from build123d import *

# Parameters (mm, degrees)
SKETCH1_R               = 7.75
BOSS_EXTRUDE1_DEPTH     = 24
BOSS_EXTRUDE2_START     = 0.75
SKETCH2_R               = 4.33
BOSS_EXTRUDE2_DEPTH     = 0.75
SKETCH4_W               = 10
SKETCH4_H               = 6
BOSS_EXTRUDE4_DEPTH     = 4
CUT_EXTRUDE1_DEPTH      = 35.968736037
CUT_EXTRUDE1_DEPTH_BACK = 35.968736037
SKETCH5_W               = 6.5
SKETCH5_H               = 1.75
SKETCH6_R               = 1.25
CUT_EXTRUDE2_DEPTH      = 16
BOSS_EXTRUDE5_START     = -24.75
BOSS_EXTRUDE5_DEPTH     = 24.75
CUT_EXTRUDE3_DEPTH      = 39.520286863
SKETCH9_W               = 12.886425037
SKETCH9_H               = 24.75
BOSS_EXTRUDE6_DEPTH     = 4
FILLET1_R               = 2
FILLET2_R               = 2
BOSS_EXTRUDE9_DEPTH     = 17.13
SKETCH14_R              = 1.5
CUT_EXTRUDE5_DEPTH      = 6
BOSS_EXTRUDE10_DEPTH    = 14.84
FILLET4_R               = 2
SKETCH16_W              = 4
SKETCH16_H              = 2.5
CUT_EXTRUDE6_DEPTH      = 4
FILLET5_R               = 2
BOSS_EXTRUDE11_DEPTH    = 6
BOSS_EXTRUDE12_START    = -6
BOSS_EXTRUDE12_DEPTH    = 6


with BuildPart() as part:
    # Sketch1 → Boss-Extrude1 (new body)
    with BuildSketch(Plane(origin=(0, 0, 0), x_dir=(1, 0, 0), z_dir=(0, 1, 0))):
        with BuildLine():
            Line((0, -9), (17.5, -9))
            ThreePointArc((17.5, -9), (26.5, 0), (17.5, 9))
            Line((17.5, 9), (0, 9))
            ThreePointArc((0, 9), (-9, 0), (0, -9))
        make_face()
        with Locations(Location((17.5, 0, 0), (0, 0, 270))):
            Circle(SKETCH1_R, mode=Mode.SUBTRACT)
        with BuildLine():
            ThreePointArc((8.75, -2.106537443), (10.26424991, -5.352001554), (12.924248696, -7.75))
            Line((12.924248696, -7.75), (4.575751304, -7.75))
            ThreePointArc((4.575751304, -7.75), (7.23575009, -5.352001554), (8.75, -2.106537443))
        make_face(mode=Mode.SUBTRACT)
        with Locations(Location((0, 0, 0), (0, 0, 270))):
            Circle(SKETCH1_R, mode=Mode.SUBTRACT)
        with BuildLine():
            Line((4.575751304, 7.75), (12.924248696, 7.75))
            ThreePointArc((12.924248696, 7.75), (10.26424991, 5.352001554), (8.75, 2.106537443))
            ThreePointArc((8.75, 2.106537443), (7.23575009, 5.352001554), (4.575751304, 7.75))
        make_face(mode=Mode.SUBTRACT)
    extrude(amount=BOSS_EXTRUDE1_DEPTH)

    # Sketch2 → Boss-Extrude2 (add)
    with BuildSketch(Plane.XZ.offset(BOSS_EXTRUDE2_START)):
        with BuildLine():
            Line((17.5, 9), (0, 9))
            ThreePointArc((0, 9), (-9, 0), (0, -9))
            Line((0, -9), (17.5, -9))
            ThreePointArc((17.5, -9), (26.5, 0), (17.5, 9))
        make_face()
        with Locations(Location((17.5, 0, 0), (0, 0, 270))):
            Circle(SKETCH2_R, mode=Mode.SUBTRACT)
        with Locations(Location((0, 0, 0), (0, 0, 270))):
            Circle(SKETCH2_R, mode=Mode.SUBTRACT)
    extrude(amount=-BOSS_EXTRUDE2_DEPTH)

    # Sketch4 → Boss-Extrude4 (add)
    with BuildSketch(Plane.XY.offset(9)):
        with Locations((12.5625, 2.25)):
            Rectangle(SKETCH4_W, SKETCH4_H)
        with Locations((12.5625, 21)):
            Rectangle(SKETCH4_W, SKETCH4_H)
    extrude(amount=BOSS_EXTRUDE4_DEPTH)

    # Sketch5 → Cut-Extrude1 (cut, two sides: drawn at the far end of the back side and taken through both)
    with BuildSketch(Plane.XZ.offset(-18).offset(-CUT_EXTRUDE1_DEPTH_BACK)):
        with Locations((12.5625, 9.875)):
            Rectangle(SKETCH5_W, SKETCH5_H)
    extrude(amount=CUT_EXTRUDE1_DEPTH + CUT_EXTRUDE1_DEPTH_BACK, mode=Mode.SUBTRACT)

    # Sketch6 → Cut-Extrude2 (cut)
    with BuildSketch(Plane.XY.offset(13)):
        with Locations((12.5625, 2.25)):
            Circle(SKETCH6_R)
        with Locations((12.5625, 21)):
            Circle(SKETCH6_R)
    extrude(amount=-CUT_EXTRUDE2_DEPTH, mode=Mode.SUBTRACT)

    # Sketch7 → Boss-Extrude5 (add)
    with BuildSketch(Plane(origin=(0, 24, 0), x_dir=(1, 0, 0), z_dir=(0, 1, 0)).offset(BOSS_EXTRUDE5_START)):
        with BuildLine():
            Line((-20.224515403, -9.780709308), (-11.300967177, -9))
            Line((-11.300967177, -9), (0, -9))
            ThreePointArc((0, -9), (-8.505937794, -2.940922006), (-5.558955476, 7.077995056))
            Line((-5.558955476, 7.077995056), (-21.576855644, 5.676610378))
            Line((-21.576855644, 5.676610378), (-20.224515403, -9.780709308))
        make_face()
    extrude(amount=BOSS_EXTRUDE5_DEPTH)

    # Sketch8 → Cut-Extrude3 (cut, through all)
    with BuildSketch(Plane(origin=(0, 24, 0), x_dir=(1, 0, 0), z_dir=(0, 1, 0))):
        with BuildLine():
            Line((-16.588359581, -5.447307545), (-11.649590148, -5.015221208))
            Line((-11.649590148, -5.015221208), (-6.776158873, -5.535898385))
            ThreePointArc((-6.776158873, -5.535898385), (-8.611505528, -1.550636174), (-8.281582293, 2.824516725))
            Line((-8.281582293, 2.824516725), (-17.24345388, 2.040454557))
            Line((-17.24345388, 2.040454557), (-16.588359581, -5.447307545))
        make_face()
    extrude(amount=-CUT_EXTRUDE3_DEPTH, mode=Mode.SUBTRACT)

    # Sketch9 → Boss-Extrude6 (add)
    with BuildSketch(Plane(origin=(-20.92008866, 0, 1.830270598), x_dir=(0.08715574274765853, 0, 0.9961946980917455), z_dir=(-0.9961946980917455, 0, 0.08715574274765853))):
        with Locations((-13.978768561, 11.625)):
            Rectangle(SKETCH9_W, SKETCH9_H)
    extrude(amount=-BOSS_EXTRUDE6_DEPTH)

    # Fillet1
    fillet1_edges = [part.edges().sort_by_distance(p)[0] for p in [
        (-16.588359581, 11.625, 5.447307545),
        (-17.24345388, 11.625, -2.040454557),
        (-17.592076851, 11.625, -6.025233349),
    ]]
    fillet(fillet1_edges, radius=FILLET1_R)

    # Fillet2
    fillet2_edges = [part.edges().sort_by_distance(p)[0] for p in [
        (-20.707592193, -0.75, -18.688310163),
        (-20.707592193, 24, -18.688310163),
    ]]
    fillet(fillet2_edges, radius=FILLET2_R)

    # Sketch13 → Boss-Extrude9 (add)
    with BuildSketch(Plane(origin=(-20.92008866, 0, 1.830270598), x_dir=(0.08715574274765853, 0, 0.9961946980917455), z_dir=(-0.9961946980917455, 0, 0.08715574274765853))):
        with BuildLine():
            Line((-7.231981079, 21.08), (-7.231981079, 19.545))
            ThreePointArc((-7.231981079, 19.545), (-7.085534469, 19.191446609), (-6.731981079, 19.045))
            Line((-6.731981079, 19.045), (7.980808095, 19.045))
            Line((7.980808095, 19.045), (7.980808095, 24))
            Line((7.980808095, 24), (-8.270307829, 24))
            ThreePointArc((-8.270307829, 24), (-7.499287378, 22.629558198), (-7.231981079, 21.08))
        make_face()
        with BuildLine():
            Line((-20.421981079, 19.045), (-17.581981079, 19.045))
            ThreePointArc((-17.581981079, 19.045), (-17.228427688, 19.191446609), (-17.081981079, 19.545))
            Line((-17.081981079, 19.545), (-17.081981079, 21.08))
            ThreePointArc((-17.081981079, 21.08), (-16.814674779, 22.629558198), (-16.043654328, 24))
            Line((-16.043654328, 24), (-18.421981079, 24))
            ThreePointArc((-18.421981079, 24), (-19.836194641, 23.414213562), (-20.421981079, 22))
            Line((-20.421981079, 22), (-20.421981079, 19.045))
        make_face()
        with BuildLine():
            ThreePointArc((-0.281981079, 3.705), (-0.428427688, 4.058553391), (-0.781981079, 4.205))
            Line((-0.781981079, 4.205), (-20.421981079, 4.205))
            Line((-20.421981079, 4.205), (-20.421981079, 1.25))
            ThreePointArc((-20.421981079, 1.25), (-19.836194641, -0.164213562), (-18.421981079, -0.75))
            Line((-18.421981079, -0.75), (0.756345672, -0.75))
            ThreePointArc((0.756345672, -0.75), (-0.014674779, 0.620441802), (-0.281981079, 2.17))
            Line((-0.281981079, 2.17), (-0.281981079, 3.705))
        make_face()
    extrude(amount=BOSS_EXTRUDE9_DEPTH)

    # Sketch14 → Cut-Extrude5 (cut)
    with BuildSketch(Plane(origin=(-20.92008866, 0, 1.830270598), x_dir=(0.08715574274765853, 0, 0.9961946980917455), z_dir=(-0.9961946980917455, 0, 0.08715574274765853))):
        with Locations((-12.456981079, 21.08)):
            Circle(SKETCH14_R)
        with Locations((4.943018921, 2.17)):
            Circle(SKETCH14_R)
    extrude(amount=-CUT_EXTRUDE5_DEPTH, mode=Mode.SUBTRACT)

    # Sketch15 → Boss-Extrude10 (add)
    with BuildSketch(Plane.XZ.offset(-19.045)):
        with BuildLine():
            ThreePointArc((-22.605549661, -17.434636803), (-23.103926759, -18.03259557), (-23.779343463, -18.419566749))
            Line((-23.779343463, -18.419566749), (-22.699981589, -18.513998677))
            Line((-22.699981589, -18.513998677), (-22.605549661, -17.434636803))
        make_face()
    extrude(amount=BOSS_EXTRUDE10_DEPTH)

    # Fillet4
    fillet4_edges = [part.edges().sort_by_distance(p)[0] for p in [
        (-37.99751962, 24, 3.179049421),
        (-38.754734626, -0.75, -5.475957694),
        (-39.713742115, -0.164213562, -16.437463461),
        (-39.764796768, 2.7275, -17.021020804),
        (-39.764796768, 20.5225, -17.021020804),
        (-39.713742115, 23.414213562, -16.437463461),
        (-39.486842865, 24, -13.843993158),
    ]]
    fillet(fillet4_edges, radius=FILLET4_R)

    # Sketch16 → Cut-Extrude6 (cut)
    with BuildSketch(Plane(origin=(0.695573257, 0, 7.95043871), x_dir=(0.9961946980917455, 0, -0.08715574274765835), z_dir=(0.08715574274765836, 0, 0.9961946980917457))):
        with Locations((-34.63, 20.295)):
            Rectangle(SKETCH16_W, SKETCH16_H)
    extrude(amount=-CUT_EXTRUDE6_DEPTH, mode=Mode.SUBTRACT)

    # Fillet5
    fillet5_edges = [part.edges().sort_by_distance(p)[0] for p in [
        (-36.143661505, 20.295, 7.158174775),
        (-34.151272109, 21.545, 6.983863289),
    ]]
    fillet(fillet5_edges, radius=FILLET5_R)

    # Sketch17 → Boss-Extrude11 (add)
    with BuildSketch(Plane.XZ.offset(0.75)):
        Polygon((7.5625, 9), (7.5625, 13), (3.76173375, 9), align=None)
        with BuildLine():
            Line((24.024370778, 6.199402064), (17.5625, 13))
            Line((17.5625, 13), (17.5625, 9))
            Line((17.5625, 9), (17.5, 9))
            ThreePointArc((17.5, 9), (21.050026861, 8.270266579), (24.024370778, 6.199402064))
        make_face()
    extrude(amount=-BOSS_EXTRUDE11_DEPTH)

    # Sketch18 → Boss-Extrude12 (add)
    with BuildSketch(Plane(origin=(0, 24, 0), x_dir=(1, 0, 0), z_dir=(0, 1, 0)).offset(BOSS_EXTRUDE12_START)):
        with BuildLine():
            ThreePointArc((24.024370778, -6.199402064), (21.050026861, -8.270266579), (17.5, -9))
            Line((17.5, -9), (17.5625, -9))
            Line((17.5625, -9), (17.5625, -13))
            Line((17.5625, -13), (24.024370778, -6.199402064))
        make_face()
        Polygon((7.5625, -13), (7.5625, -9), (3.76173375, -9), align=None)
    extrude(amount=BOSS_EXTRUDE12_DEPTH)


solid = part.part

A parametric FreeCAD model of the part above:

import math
import FreeCAD as App
import Part
import Sketcher
Q = App.Units.Quantity


def edges_at(feature, points):
    """Names of the edges that pass closest to the given points."""
    edges = feature.Shape.Edges
    near = lambda p: min(range(len(edges)), key=lambda i: edges[i].distToShape(Part.Vertex(*p))[0])
    return sorted({f"Edge{near(p) + 1}" for p in points})


def add_polygon(sketch, points):
    """Adds a closed chain of lines whose ends are joined by coincident constraints."""
    first, n = sketch.GeometryCount, len(points)
    for a, b in zip(points, points[1:] + points[:1]):
        sketch.addGeometry(Part.LineSegment(App.Vector(*a, 0), App.Vector(*b, 0)), False)
    for i in range(n):
        sketch.addConstraint(Sketcher.Constraint("Coincident", first + i, 2, first + (i + 1) % n, 1))

doc = App.newDocument("Part")
body = doc.addObject("PartDesign::Body", "Body")

sketch1 = body.newObject("Sketcher::SketchObject", "Sketch")
sketch1.AttachmentSupport = (doc.getObject("XZ_Plane"), [""])
sketch1.MapMode = "FlatFace"
sketch1.addGeometry(Part.LineSegment(App.Vector(0, 9, 0), App.Vector(18, 9, 0)), False)
sketch1.addGeometry(Part.ArcOfCircle(Part.Circle(App.Vector(18, 0, 0), App.Vector(0, 0, 1), 9), math.radians(-90), math.radians(90)), False)
sketch1.addGeometry(Part.LineSegment(App.Vector(18, -9, 0), App.Vector(0, -9, 0)), False)
sketch1.addGeometry(Part.ArcOfCircle(Part.Circle(App.Vector(0, 0, 0), App.Vector(0, 0, 1), 9), math.radians(90), math.radians(270)), False)
sketch1.addGeometry(Part.ArcOfCircle(Part.Circle(App.Vector(0, 0, 0), App.Vector(0, 0, 1), 9), math.radians(14), math.radians(59)), False)
sketch1.addGeometry(Part.ArcOfCircle(Part.Circle(App.Vector(17, 0, 0), App.Vector(0, 0, 1), 9), math.radians(121), math.radians(166)), False)
sketch1.addGeometry(Part.LineSegment(App.Vector(13, 8, 0), App.Vector(5, 8, 0)), False)
sketch1.addGeometry(Part.Circle(App.Vector(0, 0, 0), App.Vector(0, 0, 1), 8), False)
sketch1.addGeometry(Part.ArcOfCircle(Part.Circle(App.Vector(0, 0, 0), App.Vector(0, 0, 1), 9), math.radians(-59), math.radians(-14)), False)
sketch1.addGeometry(Part.LineSegment(App.Vector(5, -8, 0), App.Vector(13, -8, 0)), False)
sketch1.addGeometry(Part.ArcOfCircle(Part.Circle(App.Vector(17, 0, 0), App.Vector(0, 0, 1), 9), math.radians(-166), math.radians(-121)), False)
sketch1.addGeometry(Part.Circle(App.Vector(18, 0, 0), App.Vector(0, 0, 1), 8), False)
sketch1.addConstraint(Sketcher.Constraint("Tangent", 0, 2, 1, 2))
sketch1.addConstraint(Sketcher.Constraint("Tangent", 1, 1, 2, 1))
sketch1.addConstraint(Sketcher.Constraint("Tangent", 2, 2, 3, 2))
sketch1.addConstraint(Sketcher.Constraint("Tangent", 3, 1, 0, 1))
sketch1.addConstraint(Sketcher.Constraint("Coincident", 4, 1, 5, 2))
sketch1.addConstraint(Sketcher.Constraint("Coincident", 5, 1, 6, 1))
sketch1.addConstraint(Sketcher.Constraint("Coincident", 6, 2, 4, 2))
sketch1.addConstraint(Sketcher.Constraint("Coincident", 8, 1, 9, 1))
sketch1.addConstraint(Sketcher.Constraint("Coincident", 9, 2, 10, 2))
sketch1.addConstraint(Sketcher.Constraint("Coincident", 10, 1, 8, 2))
sketch1.addConstraint(Sketcher.Constraint("Horizontal", 0))
sketch1.addConstraint(Sketcher.Constraint("Horizontal", 2))
sketch1.addConstraint(Sketcher.Constraint("Horizontal", 6))
sketch1.addConstraint(Sketcher.Constraint("Horizontal", 9))
sketch1.addConstraint(Sketcher.Constraint("Coincident", 3, 3, -1, 1))
sketch1.addConstraint(Sketcher.Constraint("Coincident", 4, 3, -1, 1))
sketch1.addConstraint(Sketcher.Constraint("Coincident", 7, 3, -1, 1))
sketch1.addConstraint(Sketcher.Constraint("Coincident", 8, 3, -1, 1))
sketch1.addConstraint(Sketcher.Constraint("Coincident", 5, 3, 1, 3))
sketch1.addConstraint(Sketcher.Constraint("Coincident", 10, 3, 1, 3))
sketch1.addConstraint(Sketcher.Constraint("Coincident", 11, 3, 1, 3))
sketch1.addConstraint(Sketcher.Constraint("Equal", 3, 4))
sketch1.addConstraint(Sketcher.Constraint("Equal", 4, 5))
sketch1.addConstraint(Sketcher.Constraint("Equal", 5, 8))
sketch1.addConstraint(Sketcher.Constraint("Equal", 8, 10))
sketch1.addConstraint(Sketcher.Constraint("Equal", 7, 11))
sketch1.addConstraint(Sketcher.Constraint("Vertical", 6, 2, 8, 1))
sketch1.addConstraint(Sketcher.Constraint("Radius", 1, 9.0))
sketch1.addConstraint(Sketcher.Constraint("Diameter", 7, 15.5))
sketch1.addConstraint(Sketcher.Constraint("DistanceX", 0, 1, 0, 2, 17.5))
sketch1.addConstraint(Sketcher.Constraint("DistanceY", -1, 1, 5, 1, 7.75))
pad1 = body.newObject("PartDesign::Pad", "Pad")
pad1.Profile = sketch1
pad1.Length = 24
pad1.Reversed = True

sketch2 = body.newObject("Sketcher::SketchObject", "Sketch001")
sketch2.AttachmentSupport = (doc.getObject("XZ_Plane"), [""])
sketch2.MapMode = "FlatFace"
sketch2.AttachmentOffset = App.Placement(App.Vector(0, 0, 0.75), App.Rotation())
sketch2.addGeometry(Part.LineSegment(App.Vector(17.5, 9, 0), App.Vector(0, 9, 0)), False)
sketch2.addGeometry(Part.ArcOfCircle(Part.Circle(App.Vector(0, 0, 0), App.Vector(0, 0, 1), 9), math.radians(90), math.radians(270)), False)
sketch2.addGeometry(Part.LineSegment(App.Vector(0, -9, 0), App.Vector(17.5, -9, 0)), False)
sketch2.addGeometry(Part.ArcOfCircle(Part.Circle(App.Vector(17.5, 0, 0), App.Vector(0, 0, 1), 9), math.radians(-90), math.radians(90)), False)
sketch2.addGeometry(Part.Circle(App.Vector(0, 0, 0), App.Vector(0, 0, 1), 4.3), False)
sketch2.addGeometry(Part.Circle(App.Vector(17.5, 0, 0), App.Vector(0, 0, 1), 4.3), False)
sketch2.addConstraint(Sketcher.Constraint("Tangent", 0, 2, 1, 1))
sketch2.addConstraint(Sketcher.Constraint("Tangent", 1, 2, 2, 1))
sketch2.addConstraint(Sketcher.Constraint("Tangent", 2, 2, 3, 1))
sketch2.addConstraint(Sketcher.Constraint("Tangent", 3, 2, 0, 1))
sketch2.addConstraint(Sketcher.Constraint("Horizontal", 0))
sketch2.addConstraint(Sketcher.Constraint("Horizontal", 2))
sketch2.addConstraint(Sketcher.Constraint("Coincident", 1, 3, -1, 1))
sketch2.addConstraint(Sketcher.Constraint("Coincident", 4, 3, -1, 1))
sketch2.addConstraint(Sketcher.Constraint("Coincident", 5, 3, 3, 3))
sketch2.addConstraint(Sketcher.Constraint("Equal", 4, 5))
sketch2.addConstraint(Sketcher.Constraint("Radius", 1, 9.0))
sketch2.addConstraint(Sketcher.Constraint("Diameter", 4, 8.66))
sketch2.addConstraint(Sketcher.Constraint("DistanceX", 0, 2, 0, 1, 17.5))
pad2 = body.newObject("PartDesign::Pad", "Pad001")
pad2.Profile = sketch2
pad2.Length = 0.75
pad2.Reversed = True

sketch3 = body.newObject("Sketcher::SketchObject", "Sketch002")
sketch3.AttachmentSupport = (doc.getObject("XY_Plane"), [""])
sketch3.MapMode = "FlatFace"
sketch3.AttachmentOffset = App.Placement(App.Vector(0, 0, 9), App.Rotation())
add_polygon(sketch3, [(8, 5), (8, -1), (18, -1), (18, 5)])
add_polygon(sketch3, [(8, 24), (8, 18), (18, 18), (18, 24)])
sketch3.addConstraint(Sketcher.Constraint("Vertical", 0))
sketch3.addConstraint(Sketcher.Constraint("Horizontal", 1))
sketch3.addConstraint(Sketcher.Constraint("Vertical", 2))
sketch3.addConstraint(Sketcher.Constraint("Horizontal", 3))
sketch3.addConstraint(Sketcher.Constraint("Vertical", 4))
sketch3.addConstraint(Sketcher.Constraint("Horizontal", 5))
sketch3.addConstraint(Sketcher.Constraint("Vertical", 6))
sketch3.addConstraint(Sketcher.Constraint("Horizontal", 7))
sketch3.addConstraint(Sketcher.Constraint("Vertical", 3, 2, 4, 2))
sketch3.addConstraint(Sketcher.Constraint("Vertical", 2, 2, 5, 2))
sketch3.addConstraint(Sketcher.Constraint("Equal", 2, 4))
sketch3.addConstraint(Sketcher.Constraint("DistanceX", 1, 1, 1, 2, 10.0))
sketch3.addConstraint(Sketcher.Constraint("DistanceY", 0, 2, 0, 1, 6.0))
sketch3.addConstraint(Sketcher.Constraint("DistanceY", -1, 1, 4, 2, 18.0))
sketch3.addConstraint(Sketcher.Constraint("DistanceY", 0, 2, -1, 1, 0.75))
sketch3.addConstraint(Sketcher.Constraint("DistanceX", -1, 1, 0, 2, 7.5625))
pad3 = body.newObject("PartDesign::Pad", "Pad002")
pad3.Profile = sketch3
pad3.Length = 4

sketch4 = body.newObject("Sketcher::SketchObject", "Sketch003")
sketch4.AttachmentSupport = (doc.getObject("XZ_Plane"), [""])
sketch4.MapMode = "FlatFace"
sketch4.AttachmentOffset = App.Placement(App.Vector(0, 0, -18), App.Rotation())
add_polygon(sketch4, [(9.3, 10.8), (9.3, 9), (15.8, 9), (15.8, 10.8)])
sketch4.addConstraint(Sketcher.Constraint("Vertical", 0))
sketch4.addConstraint(Sketcher.Constraint("Horizontal", 1))
sketch4.addConstraint(Sketcher.Constraint("Vertical", 2))
sketch4.addConstraint(Sketcher.Constraint("Horizontal", 3))
sketch4.addConstraint(Sketcher.Constraint("DistanceX", 1, 1, 1, 2, 6.5))
sketch4.addConstraint(Sketcher.Constraint("DistanceY", -1, 1, 0, 2, 9.0))
sketch4.addConstraint(Sketcher.Constraint("DistanceY", 0, 2, 0, 1, 1.75))
sketch4.addConstraint(Sketcher.Constraint("DistanceX", -1, 1, 0, 2, 9.3125))
pocket1 = body.newObject("PartDesign::Pocket", "Pocket")
pocket1.Profile = sketch4
pocket1.Type = "ThroughAll"
pocket1.Midplane = True

sketch5 = body.newObject("Sketcher::SketchObject", "Sketch004")
sketch5.AttachmentSupport = (doc.getObject("XY_Plane"), [""])
sketch5.MapMode = "FlatFace"
sketch5.AttachmentOffset = App.Placement(App.Vector(0, 0, 13), App.Rotation())
sketch5.addGeometry(Part.Circle(App.Vector(12.6, 2.2, 0), App.Vector(0, 0, 1), 1.2), False)
sketch5.addGeometry(Part.Circle(App.Vector(12.6, 21, 0), App.Vector(0, 0, 1), 1.2), False)
sketch5.addConstraint(Sketcher.Constraint("Equal", 0, 1))
sketch5.addConstraint(Sketcher.Constraint("Vertical", 0, 3, 1, 3))
sketch5.addConstraint(Sketcher.Constraint("Diameter", 0, 2.5))
sketch5.addConstraint(Sketcher.Constraint("DistanceY", -1, 1, 1, 3, 21.0))
sketch5.addConstraint(Sketcher.Constraint("DistanceY", -1, 1, 0, 3, 2.25))
sketch5.addConstraint(Sketcher.Constraint("DistanceX", -1, 1, 0, 3, 12.5625))
pocket2 = body.newObject("PartDesign::Pocket", "Pocket001")
pocket2.Profile = sketch5
pocket2.Length = 16

sketch6 = body.newObject("Sketcher::SketchObject", "Sketch005")
sketch6.AttachmentSupport = (doc.getObject("XZ_Plane"), [""])
sketch6.MapMode = "FlatFace"
sketch6.AttachmentOffset = App.Placement(App.Vector(0, 0, 0.75), App.Rotation())
sketch6.addGeometry(Part.LineSegment(App.Vector(-20, 10, 0), App.Vector(-11, 9, 0)), False)
sketch6.addGeometry(Part.LineSegment(App.Vector(-11, 9, 0), App.Vector(0, 9, 0)), False)
sketch6.addGeometry(Part.ArcOfCircle(Part.Circle(App.Vector(0, 0, 0), App.Vector(0, 0, 1), 9), math.radians(90), math.radians(232)), False)
sketch6.addGeometry(Part.LineSegment(App.Vector(-6, -7, 0), App.Vector(-22, -6, 0)), False)
sketch6.addGeometry(Part.LineSegment(App.Vector(-22, -6, 0), App.Vector(-20, 10, 0)), False)
sketch6.addConstraint(Sketcher.Constraint("Coincident", 0, 2, 1, 1))
sketch6.addConstraint(Sketcher.Constraint("Tangent", 1, 2, 2, 1))
sketch6.addConstraint(Sketcher.Constraint("Coincident", 2, 2, 3, 1))
sketch6.addConstraint(Sketcher.Constraint("Coincident", 3, 2, 4, 1))
sketch6.addConstraint(Sketcher.Constraint("Coincident", 4, 2, 0, 1))
sketch6.addConstraint(Sketcher.Constraint("Horizontal", 1))
sketch6.addConstraint(Sketcher.Constraint("Coincident", 2, 3, -1, 1))
sketch6.addConstraint(Sketcher.Constraint("Parallel", 0, 3))
sketch6.addConstraint(Sketcher.Constraint("Perpendicular", 3, 4))
sketch6.addConstraint(Sketcher.Constraint("Radius", 2, 9.0))
sketch6.addConstraint(Sketcher.Constraint("Angle", 0, Q("-5 deg")))
sketch6.addConstraint(Sketcher.Constraint("DistanceX", 3, 2, 2, 2, 16.0179))
sketch6.addConstraint(Sketcher.Constraint("DistanceX", 1, 1, 1, 2, 11.300967))
sketch6.addConstraint(Sketcher.Constraint("DistanceY", 3, 2, -1, 1, 5.67661))
pad4 = body.newObject("PartDesign::Pad", "Pad003")
pad4.Profile = sketch6
pad4.Length = 24.75
pad4.Reversed = True

sketch7 = body.newObject("Sketcher::SketchObject", "Sketch006")
sketch7.AttachmentSupport = (doc.getObject("XZ_Plane"), [""])
sketch7.MapMode = "FlatFace"
sketch7.AttachmentOffset = App.Placement(App.Vector(0, 0, -24), App.Rotation())
sketch7.addGeometry(Part.LineSegment(App.Vector(-16.6, 5.4, 0), App.Vector(-11.6, 5, 0)), False)
sketch7.addGeometry(Part.LineSegment(App.Vector(-11.6, 5, 0), App.Vector(-6.8, 5.5, 0)), False)
sketch7.addGeometry(Part.ArcOfCircle(Part.Circle(App.Vector(0, 0, 0), App.Vector(0, 0, 1), 8.8), math.radians(141), math.radians(199)), False)
sketch7.addGeometry(Part.LineSegment(App.Vector(-8.3, -2.8, 0), App.Vector(-17.2, -2, 0)), False)
sketch7.addGeometry(Part.LineSegment(App.Vector(-17.2, -2, 0), App.Vector(-16.6, 5.4, 0)), False)
sketch7.addConstraint(Sketcher.Constraint("Coincident", 0, 2, 1, 1))
sketch7.addConstraint(Sketcher.Constraint("Coincident", 1, 2, 2, 1))
sketch7.addConstraint(Sketcher.Constraint("Coincident", 2, 2, 3, 1))
sketch7.addConstraint(Sketcher.Constraint("Coincident", 3, 2, 4, 1))
sketch7.addConstraint(Sketcher.Constraint("Coincident", 4, 2, 0, 1))
sketch7.addConstraint(Sketcher.Constraint("Coincident", 2, 3, -1, 1))
sketch7.addConstraint(Sketcher.Constraint("Parallel", 0, 3))
sketch7.addConstraint(Sketcher.Constraint("Perpendicular", 3, 4))
sketch7.addConstraint(Sketcher.Constraint("Angle", 0, Q("-5 deg")))
sketch7.addConstraint(Sketcher.Constraint("Radius", 2, 8.75))
sketch7.addConstraint(Sketcher.Constraint("DistanceY", -1, 1, 1, 2, 5.535898))
sketch7.addConstraint(Sketcher.Constraint("DistanceX", 4, 2, 1, 2, 9.812201))
sketch7.addConstraint(Sketcher.Constraint("DistanceX", 0, 2, -1, 1, 11.64959))
sketch7.addConstraint(Sketcher.Constraint("DistanceY", -1, 1, 0, 2, 5.015221))
sketch7.addConstraint(Sketcher.Constraint("DistanceX", 3, 2, 2, 2, 8.961872))
pocket3 = body.newObject("PartDesign::Pocket", "Pocket002")
pocket3.Profile = sketch7
pocket3.Type = "ThroughAll"
pocket3.Reversed = True

sketch8 = body.newObject("Sketcher::SketchObject", "Sketch007")
sketch8.Placement = App.Placement(App.Vector(-20.920089, 0, 1.830271), App.Rotation(App.Vector(0.087155743, 0, 0.996194698), App.Vector(0, 1, 0), App.Vector(-0.996194698, 0, 0.087155743), "ZXY"))
add_polygon(sketch8, [(-20, 24), (-20, -1), (-8, -1), (-8, 24)])
sketch8.addConstraint(Sketcher.Constraint("Vertical", 0))
sketch8.addConstraint(Sketcher.Constraint("Horizontal", 1))
sketch8.addConstraint(Sketcher.Constraint("Vertical", 2))
sketch8.addConstraint(Sketcher.Constraint("Horizontal", 3))
sketch8.addConstraint(Sketcher.Constraint("DistanceY", -1, 1, 2, 2, 24.0))
sketch8.addConstraint(Sketcher.Constraint("DistanceY", 0, 2, 0, 1, 24.75))
sketch8.addConstraint(Sketcher.Constraint("DistanceX", 1, 1, 1, 2, 12.886425))
sketch8.addConstraint(Sketcher.Constraint("DistanceX", 0, 2, -1, 1, 20.421981))
pad5 = body.newObject("PartDesign::Pad", "Pad004")
pad5.Profile = sketch8
pad5.Length = 4
pad5.Reversed = True
doc.recompute()

fillet = body.newObject("PartDesign::Fillet", "Fillet")
fillet.Base = (pad5, edges_at(pad5, [(-16.588, 11.625, 5.447), (-17.243, 11.625, -2.04), (-17.592, 11.625, -6.025)]))
fillet.Radius = 2
doc.recompute()

fillet2 = body.newObject("PartDesign::Fillet", "Fillet001")
fillet2.Base = (fillet, edges_at(fillet, [(-20.708, -0.75, -18.688), (-20.708, 24, -18.688)]))
fillet2.Radius = 2

sketch9 = body.newObject("Sketcher::SketchObject", "Sketch008")
sketch9.Placement = App.Placement(App.Vector(-20.920089, 0, 1.830271), App.Rotation(App.Vector(0.087155743, 0, 0.996194698), App.Vector(0, 1, 0), App.Vector(-0.996194698, 0, 0.087155743), "ZXY"))
sketch9.addGeometry(Part.LineSegment(App.Vector(-7.23, 21.08, 0), App.Vector(-7.23, 19.54, 0)), False)
sketch9.addGeometry(Part.ArcOfCircle(Part.Circle(App.Vector(-6.73, 19.54, 0), App.Vector(0, 0, 1), 0.5), math.radians(180), math.radians(270)), False)
sketch9.addGeometry(Part.LineSegment(App.Vector(-6.73, 19.04, 0), App.Vector(7.98, 19.04, 0)), False)
sketch9.addGeometry(Part.LineSegment(App.Vector(7.98, 19.04, 0), App.Vector(7.98, 24, 0)), False)
sketch9.addGeometry(Part.LineSegment(App.Vector(7.98, 24, 0), App.Vector(-8.27, 24, 0)), False)
sketch9.addGeometry(Part.ArcOfCircle(Part.Circle(App.Vector(-11.86, 21.08, 0), App.Vector(0, 0, 1), 4.63), math.radians(0), math.radians(39)), False)
sketch9.addGeometry(Part.LineSegment(App.Vector(-20.42, 19.04, 0), App.Vector(-17.58, 19.04, 0)), False)
sketch9.addGeometry(Part.ArcOfCircle(Part.Circle(App.Vector(-17.58, 19.54, 0), App.Vector(0, 0, 1), 0.5), math.radians(-90), math.radians(0)), False)
sketch9.addGeometry(Part.LineSegment(App.Vector(-17.08, 19.54, 0), App.Vector(-17.08, 21.08, 0)), False)
sketch9.addGeometry(Part.ArcOfCircle(Part.Circle(App.Vector(-12.46, 21.08, 0), App.Vector(0, 0, 1), 4.63), math.radians(141), math.radians(180)), False)
sketch9.addGeometry(Part.LineSegment(App.Vector(-16.04, 24, 0), App.Vector(-18.42, 24, 0)), False)
sketch9.addGeometry(Part.ArcOfCircle(Part.Circle(App.Vector(-18.42, 22, 0), App.Vector(0, 0, 1), 2), math.radians(90), math.radians(180)), False)
sketch9.addGeometry(Part.LineSegment(App.Vector(-20.42, 22, 0), App.Vector(-20.42, 19.04, 0)), False)
sketch9.addGeometry(Part.ArcOfCircle(Part.Circle(App.Vector(-0.78, 3.71, 0), App.Vector(0, 0, 1), 0.5), math.radians(0), math.radians(90)), False)
sketch9.addGeometry(Part.LineSegment(App.Vector(-0.78, 4.2, 0), App.Vector(-20.42, 4.2, 0)), False)
sketch9.addGeometry(Part.LineSegment(App.Vector(-20.42, 4.2, 0), App.Vector(-20.42, 1.25, 0)), False)
sketch9.addGeometry(Part.ArcOfCircle(Part.Circle(App.Vector(-18.42, 1.25, 0), App.Vector(0, 0, 1), 2), math.radians(-180), math.radians(-90)), False)
sketch9.addGeometry(Part.LineSegment(App.Vector(-18.42, -0.75, 0), App.Vector(0.76, -0.75, 0)), False)
sketch9.addGeometry(Part.ArcOfCircle(Part.Circle(App.Vector(4.34, 2.17, 0), App.Vector(0, 0, 1), 4.63), math.radians(-180), math.radians(-141)), False)
sketch9.addGeometry(Part.LineSegment(App.Vector(-0.28, 2.17, 0), App.Vector(-0.28, 3.7, 0)), False)
sketch9.addConstraint(Sketcher.Constraint("Tangent", 0, 2, 1, 1))
sketch9.addConstraint(Sketcher.Constraint("Tangent", 1, 2, 2, 1))
sketch9.addConstraint(Sketcher.Constraint("Coincident", 2, 2, 3, 1))
sketch9.addConstraint(Sketcher.Constraint("Coincident", 3, 2, 4, 1))
sketch9.addConstraint(Sketcher.Constraint("Coincident", 4, 2, 5, 2))
sketch9.addConstraint(Sketcher.Constraint("Tangent", 5, 1, 0, 1))
sketch9.addConstraint(Sketcher.Constraint("Tangent", 6, 2, 7, 1))
sketch9.addConstraint(Sketcher.Constraint("Tangent", 7, 2, 8, 1))
sketch9.addConstraint(Sketcher.Constraint("Tangent", 8, 2, 9, 2))
sketch9.addConstraint(Sketcher.Constraint("Coincident", 9, 1, 10, 1))
sketch9.addConstraint(Sketcher.Constraint("Tangent", 10, 2, 11, 1))
sketch9.addConstraint(Sketcher.Constraint("Tangent", 11, 2, 12, 1))
sketch9.addConstraint(Sketcher.Constraint("Coincident", 12, 2, 6, 1))
sketch9.addConstraint(Sketcher.Constraint("Tangent", 13, 2, 14, 1))
sketch9.addConstraint(Sketcher.Constraint("Coincident", 14, 2, 15, 1))
sketch9.addConstraint(Sketcher.Constraint("Tangent", 15, 2, 16, 1))
sketch9.addConstraint(Sketcher.Constraint("Tangent", 16, 2, 17, 1))
sketch9.addConstraint(Sketcher.Constraint("Coincident", 17, 2, 18, 2))
sketch9.addConstraint(Sketcher.Constraint("Tangent", 18, 1, 19, 1))
sketch9.addConstraint(Sketcher.Constraint("Tangent", 19, 2, 13, 1))
sketch9.addConstraint(Sketcher.Constraint("Vertical", 0))
sketch9.addConstraint(Sketcher.Constraint("Horizontal", 2))
sketch9.addConstraint(Sketcher.Constraint("Vertical", 3))
sketch9.addConstraint(Sketcher.Constraint("Horizontal", 4))
sketch9.addConstraint(Sketcher.Constraint("Horizontal", 6))
sketch9.addConstraint(Sketcher.Constraint("Vertical", 8))
sketch9.addConstraint(Sketcher.Constraint("Horizontal", 10))
sketch9.addConstraint(Sketcher.Constraint("Vertical", 12))
sketch9.addConstraint(Sketcher.Constraint("Horizontal", 14))
sketch9.addConstraint(Sketcher.Constraint("Vertical", 15))
sketch9.addConstraint(Sketcher.Constraint("Horizontal", 17))
sketch9.addConstraint(Sketcher.Constraint("Vertical", 19))
sketch9.addConstraint(Sketcher.Constraint("Equal", 1, 7))
sketch9.addConstraint(Sketcher.Constraint("Equal", 5, 9))
sketch9.addConstraint(Sketcher.Constraint("Equal", 7, 13))
sketch9.addConstraint(Sketcher.Constraint("Equal", 11, 16))
sketch9.addConstraint(Sketcher.Constraint("Equal", 9, 18))
sketch9.addConstraint(Sketcher.Constraint("Horizontal", 1, 3, 7, 3))
sketch9.addConstraint(Sketcher.Constraint("Horizontal", 5, 3, 9, 3))
sketch9.addConstraint(Sketcher.Constraint("Horizontal", 4, 2, 9, 1))
sketch9.addConstraint(Sketcher.Constraint("Vertical", 11, 3, 16, 3))
sketch9.addConstraint(Sketcher.Constraint("Equal", 12, 15))
sketch9.addConstraint(Sketcher.Constraint("Equal", 8, 19))
sketch9.addConstraint(Sketcher.Constraint("Radius", 11, 2.0))
sketch9.addConstraint(Sketcher.Constraint("Radius", 1, 0.5))
sketch9.addConstraint(Sketcher.Constraint("DistanceY", -1, 1, 11, 3, 22.0))
sketch9.addConstraint(Sketcher.Constraint("Radius", 5, 4.625))
sketch9.addConstraint(Sketcher.Constraint("DistanceX", 6, 1, 6, 2, 2.84))
sketch9.addConstraint(Sketcher.Constraint("DistanceX", 14, 2, 14, 1, 19.64))
sketch9.addConstraint(Sketcher.Constraint("DistanceX", 9, 3, 5, 3, 0.6))
sketch9.addConstraint(Sketcher.Constraint("DistanceY", 0, 2, 0, 1, 1.535))
sketch9.addConstraint(Sketcher.Constraint("DistanceY", 3, 1, 3, 2, 4.955))
sketch9.addConstraint(Sketcher.Constraint("DistanceY", -1, 1, 16, 3, 1.25))
sketch9.addConstraint(Sketcher.Constraint("DistanceX", 2, 1, 2, 2, 14.712789))
sketch9.addConstraint(Sketcher.Constraint("DistanceX", 1, 3, -1, 1, 6.731981))
pad6 = body.newObject("PartDesign::Pad", "Pad005")
pad6.Profile = sketch9
pad6.Length = 17.13

sketch10 = body.newObject("Sketcher::SketchObject", "Sketch009")
sketch10.Placement = App.Placement(App.Vector(-20.920089, 0, 1.830271), App.Rotation(App.Vector(0.087155743, 0, 0.996194698), App.Vector(0, 1, 0), App.Vector(-0.996194698, 0, 0.087155743), "ZXY"))
sketch10.addGeometry(Part.Circle(App.Vector(-12.5, 21.1, 0), App.Vector(0, 0, 1), 1.5), False)
sketch10.addGeometry(Part.Circle(App.Vector(4.9, 2.2, 0), App.Vector(0, 0, 1), 1.5), False)
sketch10.addConstraint(Sketcher.Constraint("Equal", 0, 1))
sketch10.addConstraint(Sketcher.Constraint("Diameter", 0, 3.0))
sketch10.addConstraint(Sketcher.Constraint("DistanceX", 0, 3, 1, 3, 17.4))
sketch10.addConstraint(Sketcher.Constraint("DistanceY", -1, 1, 0, 3, 21.08))
sketch10.addConstraint(Sketcher.Constraint("DistanceY", -1, 1, 1, 3, 2.17))
sketch10.addConstraint(Sketcher.Constraint("DistanceX", 0, 3, -1, 1, 12.456981))
pocket4 = body.newObject("PartDesign::Pocket", "Pocket003")
pocket4.Profile = sketch10
pocket4.Length = 6

sketch11 = body.newObject("Sketcher::SketchObject", "Sketch010")
sketch11.AttachmentSupport = (doc.getObject("XZ_Plane"), [""])
sketch11.MapMode = "FlatFace"
sketch11.AttachmentOffset = App.Placement(App.Vector(0, 0, -19.045), App.Rotation())
sketch11.addGeometry(Part.ArcOfCircle(Part.Circle(App.Vector(-24.5, -16.3, 0), App.Vector(0, 0, 1), 2.2), math.radians(-70), math.radians(-30)), False)
sketch11.addGeometry(Part.LineSegment(App.Vector(-23.8, -18.4, 0), App.Vector(-22.7, -18.5, 0)), False)
sketch11.addGeometry(Part.LineSegment(App.Vector(-22.7, -18.5, 0), App.Vector(-22.6, -17.4, 0)), False)
sketch11.addConstraint(Sketcher.Constraint("Coincident", 0, 1, 1, 1))
sketch11.addConstraint(Sketcher.Constraint("Coincident", 1, 2, 2, 1))
sketch11.addConstraint(Sketcher.Constraint("Coincident", 2, 2, 0, 2))
sketch11.addConstraint(Sketcher.Constraint("Perpendicular", 1, 2))
sketch11.addConstraint(Sketcher.Constraint("Equal", 1, 2))
sketch11.addConstraint(Sketcher.Constraint("Radius", 0, 2.2))
sketch11.addConstraint(Sketcher.Constraint("Angle", 1, Q("-5 deg")))
sketch11.addConstraint(Sketcher.Constraint("DistanceY", 1, 2, -1, 1, 18.513999))
sketch11.addConstraint(Sketcher.Constraint("DistanceY", 1, 2, 0, 3, 2.166701))
sketch11.addConstraint(Sketcher.Constraint("DistanceX", 0, 3, -1, 1, 24.51806))
pad7 = body.newObject("PartDesign::Pad", "Pad006")
pad7.Profile = sketch11
pad7.Length = 14.84
doc.recompute()

fillet3 = body.newObject("PartDesign::Fillet", "Fillet002")
fillet3.Base = (pad7, edges_at(pad7, [
    (-37.998, 24, 3.179),
    (-38.755, -0.75, -5.476),
    (-39.714, -0.164, -16.437),
    (-39.765, 2.728, -17.021),
    (-39.765, 20.523, -17.021),
    (-39.714, 23.414, -16.437),
    (-39.487, 24, -13.844),
]))
fillet3.Radius = 2

sketch12 = body.newObject("Sketcher::SketchObject", "Sketch011")
sketch12.Placement = App.Placement(App.Vector(0.695573, 0, 7.950439), App.Rotation(App.Vector(0.996194698, 0, -0.087155743), App.Vector(0, 1, 0), App.Vector(0.087155743, 0, 0.996194698), "ZXY"))
add_polygon(sketch12, [(-36.6, 21.5), (-36.6, 19), (-32.6, 19), (-32.6, 21.5)])
sketch12.addConstraint(Sketcher.Constraint("Vertical", 0))
sketch12.addConstraint(Sketcher.Constraint("Horizontal", 1))
sketch12.addConstraint(Sketcher.Constraint("Vertical", 2))
sketch12.addConstraint(Sketcher.Constraint("Horizontal", 3))
sketch12.addConstraint(Sketcher.Constraint("DistanceX", 1, 1, 1, 2, 4.0))
sketch12.addConstraint(Sketcher.Constraint("DistanceY", 0, 2, 0, 1, 2.5))
sketch12.addConstraint(Sketcher.Constraint("DistanceX", 0, 2, -1, 1, 36.63))
sketch12.addConstraint(Sketcher.Constraint("DistanceY", -1, 1, 0, 2, 19.045))
pocket5 = body.newObject("PartDesign::Pocket", "Pocket004")
pocket5.Profile = sketch12
pocket5.Length = 4
doc.recompute()

fillet4 = body.newObject("PartDesign::Fillet", "Fillet003")
fillet4.Base = (pocket5, edges_at(pocket5, [(-36.144, 20.295, 7.158), (-34.151, 21.545, 6.984)]))
fillet4.Radius = 2

sketch13 = body.newObject("Sketcher::SketchObject", "Sketch012")
sketch13.AttachmentSupport = (doc.getObject("XZ_Plane"), [""])
sketch13.MapMode = "FlatFace"
sketch13.AttachmentOffset = App.Placement(App.Vector(0, 0, 0.75), App.Rotation())
add_polygon(sketch13, [(7.56, 9), (7.56, 13), (3.76, 9)])
sketch13.addGeometry(Part.LineSegment(App.Vector(24.02, 6.2, 0), App.Vector(17.56, 13, 0)), False)
sketch13.addGeometry(Part.LineSegment(App.Vector(17.56, 13, 0), App.Vector(17.56, 9, 0)), False)
sketch13.addGeometry(Part.LineSegment(App.Vector(17.56, 9, 0), App.Vector(17.5, 9, 0)), False)
sketch13.addGeometry(Part.ArcOfCircle(Part.Circle(App.Vector(17.5, 0, 0), App.Vector(0, 0, 1), 9), math.radians(44), math.radians(90)), False)
sketch13.addConstraint(Sketcher.Constraint("Coincident", 3, 2, 4, 1))
sketch13.addConstraint(Sketcher.Constraint("Coincident", 4, 2, 5, 1))
sketch13.addConstraint(Sketcher.Constraint("Tangent", 5, 2, 6, 2))
sketch13.addConstraint(Sketcher.Constraint("Tangent", 6, 1, 3, 1))
sketch13.addConstraint(Sketcher.Constraint("Vertical", 0))
sketch13.addConstraint(Sketcher.Constraint("Horizontal", 2))
sketch13.addConstraint(Sketcher.Constraint("Vertical", 4))
sketch13.addConstraint(Sketcher.Constraint("Horizontal", 5))
sketch13.addConstraint(Sketcher.Constraint("PointOnObject", 6, 3, -1))
sketch13.addConstraint(Sketcher.Constraint("Horizontal", 0, 2, 3, 2))
sketch13.addConstraint(Sketcher.Constraint("Horizontal", 2, 2, 4, 2))
sketch13.addConstraint(Sketcher.Constraint("Radius", 6, 9.0))
sketch13.addConstraint(Sketcher.Constraint("DistanceY", 0, 1, 0, 2, 4.0))
sketch13.addConstraint(Sketcher.Constraint("DistanceX", 0, 2, 3, 2, 10.0))
sketch13.addConstraint(Sketcher.Constraint("DistanceX", -1, 1, 6, 3, 17.5))
sketch13.addConstraint(Sketcher.Constraint("DistanceX", 5, 2, 5, 1, 0.0625))
sketch13.addConstraint(Sketcher.Constraint("DistanceX", 2, 1, 2, 2, 3.800766))
pad8 = body.newObject("PartDesign::Pad", "Pad007")
pad8.Profile = sketch13
pad8.Length = 6
pad8.Reversed = True

sketch14 = body.newObject("Sketcher::SketchObject", "Sketch013")
sketch14.AttachmentSupport = (doc.getObject("XZ_Plane"), [""])
sketch14.MapMode = "FlatFace"
sketch14.AttachmentOffset = App.Placement(App.Vector(0, 0, -18), App.Rotation())
sketch14.addGeometry(Part.ArcOfCircle(Part.Circle(App.Vector(17.5, 0, 0), App.Vector(0, 0, 1), 9), math.radians(44), math.radians(90)), False)
sketch14.addGeometry(Part.LineSegment(App.Vector(17.5, 9, 0), App.Vector(17.56, 9, 0)), False)
sketch14.addGeometry(Part.LineSegment(App.Vector(17.56, 9, 0), App.Vector(17.56, 13, 0)), False)
sketch14.addGeometry(Part.LineSegment(App.Vector(17.56, 13, 0), App.Vector(24.02, 6.2, 0)), False)
add_polygon(sketch14, [(7.56, 13), (7.56, 9), (3.76, 9)])
sketch14.addConstraint(Sketcher.Constraint("Tangent", 0, 2, 1, 1))
sketch14.addConstraint(Sketcher.Constraint("Coincident", 1, 2, 2, 1))
sketch14.addConstraint(Sketcher.Constraint("Coincident", 2, 2, 3, 1))
sketch14.addConstraint(Sketcher.Constraint("Tangent", 3, 2, 0, 1))
sketch14.addConstraint(Sketcher.Constraint("Horizontal", 1))
sketch14.addConstraint(Sketcher.Constraint("Vertical", 2))
sketch14.addConstraint(Sketcher.Constraint("Vertical", 4))
sketch14.addConstraint(Sketcher.Constraint("Horizontal", 5))
sketch14.addConstraint(Sketcher.Constraint("PointOnObject", 0, 3, -1))
sketch14.addConstraint(Sketcher.Constraint("Horizontal", 1, 2, 4, 2))
sketch14.addConstraint(Sketcher.Constraint("Horizontal", 2, 2, 6, 2))
sketch14.addConstraint(Sketcher.Constraint("Radius", 0, 9.0))
sketch14.addConstraint(Sketcher.Constraint("DistanceY", 2, 1, 2, 2, 4.0))
sketch14.addConstraint(Sketcher.Constraint("DistanceX", 4, 2, 1, 2, 10.0))
sketch14.addConstraint(Sketcher.Constraint("DistanceX", -1, 1, 0, 3, 17.5))
sketch14.addConstraint(Sketcher.Constraint("DistanceX", 1, 1, 1, 2, 0.0625))
sketch14.addConstraint(Sketcher.Constraint("DistanceX", 5, 2, 5, 1, 3.800766))
pad9 = body.newObject("PartDesign::Pad", "Pad008")
pad9.Profile = sketch14
pad9.Length = 6
pad9.Reversed = True

doc.recompute()
